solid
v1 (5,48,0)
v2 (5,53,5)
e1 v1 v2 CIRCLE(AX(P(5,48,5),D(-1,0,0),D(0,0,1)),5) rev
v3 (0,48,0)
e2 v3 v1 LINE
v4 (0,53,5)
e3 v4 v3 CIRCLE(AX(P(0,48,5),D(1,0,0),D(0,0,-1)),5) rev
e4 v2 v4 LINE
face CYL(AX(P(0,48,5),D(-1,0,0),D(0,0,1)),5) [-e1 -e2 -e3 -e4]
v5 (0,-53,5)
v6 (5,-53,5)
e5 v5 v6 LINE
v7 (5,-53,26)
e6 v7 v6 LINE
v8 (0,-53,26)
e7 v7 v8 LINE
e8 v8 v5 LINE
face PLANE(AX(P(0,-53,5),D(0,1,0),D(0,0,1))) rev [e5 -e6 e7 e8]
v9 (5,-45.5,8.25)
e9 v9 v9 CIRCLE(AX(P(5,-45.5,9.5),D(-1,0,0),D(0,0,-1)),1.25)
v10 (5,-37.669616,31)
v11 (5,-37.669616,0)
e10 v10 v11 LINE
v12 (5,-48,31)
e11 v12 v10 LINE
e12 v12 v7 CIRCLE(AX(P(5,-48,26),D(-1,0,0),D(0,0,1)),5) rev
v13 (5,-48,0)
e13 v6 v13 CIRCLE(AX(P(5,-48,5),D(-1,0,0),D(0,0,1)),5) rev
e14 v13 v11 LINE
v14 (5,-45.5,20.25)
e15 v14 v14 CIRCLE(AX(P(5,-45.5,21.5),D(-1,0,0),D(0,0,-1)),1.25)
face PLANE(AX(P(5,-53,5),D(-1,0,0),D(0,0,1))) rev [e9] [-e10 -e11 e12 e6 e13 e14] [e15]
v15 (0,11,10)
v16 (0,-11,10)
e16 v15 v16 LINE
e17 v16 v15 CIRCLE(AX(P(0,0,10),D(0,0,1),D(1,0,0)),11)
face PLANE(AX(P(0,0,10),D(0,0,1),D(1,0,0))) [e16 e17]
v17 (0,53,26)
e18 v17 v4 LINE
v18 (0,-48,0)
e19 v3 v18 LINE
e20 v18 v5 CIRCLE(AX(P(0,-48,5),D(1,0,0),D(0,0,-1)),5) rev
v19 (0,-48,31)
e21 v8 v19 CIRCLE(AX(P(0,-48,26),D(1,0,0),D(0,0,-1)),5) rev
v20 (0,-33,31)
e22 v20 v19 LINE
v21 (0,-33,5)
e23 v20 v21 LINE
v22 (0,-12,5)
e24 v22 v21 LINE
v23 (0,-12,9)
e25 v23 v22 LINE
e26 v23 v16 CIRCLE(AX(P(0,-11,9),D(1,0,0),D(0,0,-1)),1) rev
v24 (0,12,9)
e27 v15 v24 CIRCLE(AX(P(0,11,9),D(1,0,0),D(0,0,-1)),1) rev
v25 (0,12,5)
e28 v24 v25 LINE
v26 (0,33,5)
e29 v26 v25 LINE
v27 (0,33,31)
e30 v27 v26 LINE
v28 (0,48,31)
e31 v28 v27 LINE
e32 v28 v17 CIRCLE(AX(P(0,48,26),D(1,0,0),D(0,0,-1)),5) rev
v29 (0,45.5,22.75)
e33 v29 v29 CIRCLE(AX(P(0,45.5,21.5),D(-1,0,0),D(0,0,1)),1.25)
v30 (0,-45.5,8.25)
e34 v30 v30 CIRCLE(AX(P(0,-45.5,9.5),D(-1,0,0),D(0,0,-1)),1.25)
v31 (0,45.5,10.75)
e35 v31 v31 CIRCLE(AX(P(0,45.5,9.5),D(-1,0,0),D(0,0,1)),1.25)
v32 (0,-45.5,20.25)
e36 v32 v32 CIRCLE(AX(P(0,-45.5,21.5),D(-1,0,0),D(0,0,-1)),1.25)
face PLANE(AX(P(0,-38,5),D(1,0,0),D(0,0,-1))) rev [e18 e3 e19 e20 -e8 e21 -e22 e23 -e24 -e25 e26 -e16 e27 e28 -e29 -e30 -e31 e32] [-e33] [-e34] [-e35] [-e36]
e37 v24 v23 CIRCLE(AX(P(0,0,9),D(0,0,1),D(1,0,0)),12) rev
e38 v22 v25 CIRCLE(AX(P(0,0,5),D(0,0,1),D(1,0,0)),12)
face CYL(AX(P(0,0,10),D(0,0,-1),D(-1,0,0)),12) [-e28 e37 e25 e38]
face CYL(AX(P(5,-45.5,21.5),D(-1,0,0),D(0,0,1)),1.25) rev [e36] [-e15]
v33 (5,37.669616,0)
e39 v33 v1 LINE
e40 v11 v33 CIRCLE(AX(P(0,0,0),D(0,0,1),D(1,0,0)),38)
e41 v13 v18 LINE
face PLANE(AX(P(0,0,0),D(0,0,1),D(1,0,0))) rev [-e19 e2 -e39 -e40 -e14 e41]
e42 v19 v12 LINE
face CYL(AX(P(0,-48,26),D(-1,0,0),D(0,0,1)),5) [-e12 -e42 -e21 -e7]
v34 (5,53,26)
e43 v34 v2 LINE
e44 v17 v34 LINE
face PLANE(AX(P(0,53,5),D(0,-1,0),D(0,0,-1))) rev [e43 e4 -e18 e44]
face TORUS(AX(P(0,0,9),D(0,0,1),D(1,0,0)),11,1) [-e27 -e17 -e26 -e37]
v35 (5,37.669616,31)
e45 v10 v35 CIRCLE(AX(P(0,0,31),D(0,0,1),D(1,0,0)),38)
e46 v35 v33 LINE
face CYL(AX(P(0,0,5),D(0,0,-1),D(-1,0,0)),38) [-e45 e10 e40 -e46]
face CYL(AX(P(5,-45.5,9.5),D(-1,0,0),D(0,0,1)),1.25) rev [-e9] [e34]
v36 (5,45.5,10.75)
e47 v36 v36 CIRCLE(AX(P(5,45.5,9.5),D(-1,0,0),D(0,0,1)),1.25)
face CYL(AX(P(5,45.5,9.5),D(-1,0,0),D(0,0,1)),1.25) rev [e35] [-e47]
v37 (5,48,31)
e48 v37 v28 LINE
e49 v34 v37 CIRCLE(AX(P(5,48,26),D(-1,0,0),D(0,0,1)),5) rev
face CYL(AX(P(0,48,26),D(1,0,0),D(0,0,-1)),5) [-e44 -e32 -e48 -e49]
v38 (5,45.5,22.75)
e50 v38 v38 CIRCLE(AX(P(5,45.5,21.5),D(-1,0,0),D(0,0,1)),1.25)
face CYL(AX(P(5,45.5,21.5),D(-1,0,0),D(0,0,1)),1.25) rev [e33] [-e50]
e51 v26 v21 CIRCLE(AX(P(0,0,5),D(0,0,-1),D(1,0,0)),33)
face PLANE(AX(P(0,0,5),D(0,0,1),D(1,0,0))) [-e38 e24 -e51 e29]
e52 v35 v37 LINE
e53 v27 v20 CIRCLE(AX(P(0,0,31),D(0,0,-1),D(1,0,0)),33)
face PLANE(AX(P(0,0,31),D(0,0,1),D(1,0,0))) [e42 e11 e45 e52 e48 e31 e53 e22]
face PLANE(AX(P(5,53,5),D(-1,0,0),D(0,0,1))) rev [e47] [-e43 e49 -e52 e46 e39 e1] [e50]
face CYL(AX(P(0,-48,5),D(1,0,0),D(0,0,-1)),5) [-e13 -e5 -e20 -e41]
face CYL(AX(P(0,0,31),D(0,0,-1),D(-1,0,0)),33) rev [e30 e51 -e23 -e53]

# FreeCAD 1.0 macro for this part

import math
import FreeCAD as App
import Part
import Sketcher
from FreeCAD import Vector


def edges_at(feature, points):
    """Names of the edges that pass closest to the given points."""
    edges = feature.Shape.Edges
    near = lambda p: min(range(len(edges)), key=lambda i: edges[i].distToShape(Part.Vertex(*p))[0])
    return sorted({f"Edge{near(p) + 1}" for p in points})

doc = App.newDocument("Part")
body = doc.addObject("PartDesign::Body", "Body")

# Sketch on XY plane
sketch1 = body.newObject("Sketcher::SketchObject", "Sketch")
sketch1.AttachmentSupport = (doc.getObject("XY_Plane"), [""])
sketch1.MapMode = "FlatFace"
sketch1.addGeometry([
    Part.LineSegment(Vector(5, 53, 0), Vector(0, 53, 0)),  # 0
    Part.LineSegment(Vector(0, 53, 0), Vector(0, -53, 0)),  # 1
    Part.LineSegment(Vector(0, -53, 0), Vector(5, -53, 0)),  # 2
    Part.LineSegment(Vector(5, -53, 0), Vector(5, -38, 0)),  # 3
    Part.ArcOfCircle(Part.Circle(Vector(0, 0, 0), Vector(0, 0, 1), 38), math.radians(-82), math.radians(82)),  # 4
    Part.LineSegment(Vector(5, 38, 0), Vector(5, 53, 0)),  # 5
], False)
sketch1.addConstraint([
    Sketcher.Constraint("Coincident", 0, 2, 1, 1),
    Sketcher.Constraint("Coincident", 1, 2, 2, 1),
    Sketcher.Constraint("Coincident", 2, 2, 3, 1),
    Sketcher.Constraint("Coincident", 3, 2, 4, 1),
    Sketcher.Constraint("Coincident", 4, 2, 5, 1),
    Sketcher.Constraint("Coincident", 5, 2, 0, 1),
    Sketcher.Constraint("Horizontal", 0),
    Sketcher.Constraint("Vertical", 1),
    Sketcher.Constraint("Horizontal", 2),
    Sketcher.Constraint("Vertical", 3),
    Sketcher.Constraint("Vertical", 5),
    Sketcher.Constraint("Coincident", 4, 3, -1, 1),
    Sketcher.Constraint("Symmetric", 0, 2, 1, 2, -1, 1),
    Sketcher.Constraint("Vertical", 3, 2, 4, 2),
    Sketcher.Constraint("Radius", 4, 38.0),
    Sketcher.Constraint("DistanceX", 0, 2, 0, 1, 5.0),
    Sketcher.Constraint("DistanceY", 1, 2, 1, 1, 106.0),
])
pad1 = body.newObject("PartDesign::Pad", "Pad")
pad1.Profile = sketch1
pad1.Length = 5

# Sketch on XY plane
sketch2 = body.newObject("Sketcher::SketchObject", "Sketch001")
sketch2.AttachmentSupport = (doc.getObject("XY_Plane"), [""])
sketch2.MapMode = "FlatFace"
sketch2.AttachmentOffset = App.Placement(Vector(0, 0, 5), App.Rotation())
sketch2.addGeometry([
    Part.LineSegment(Vector(0, -33, 0), Vector(0, -38, 0)),
    Part.ArcOfCircle(Part.Circle(Vector(0, 0, 0), Vector(0, 0, 1), 38), math.radians(-90), math.radians(90)),
    Part.LineSegment(Vector(0, 38, 0), Vector(0, 33, 0)),
    Part.ArcOfCircle(Part.Circle(Vector(0, 0, 0), Vector(0, 0, 1), 33), math.radians(-90), math.radians(90)),
], False)
sketch2.addConstraint([
    Sketcher.Constraint("Coincident", 0, 2, 1, 1),
    Sketcher.Constraint("Coincident", 1, 2, 2, 1),
    Sketcher.Constraint("Coincident", 2, 2, 3, 2),
    Sketcher.Constraint("Coincident", 3, 1, 0, 1),
    Sketcher.Constraint("Vertical", 0),
    Sketcher.Constraint("Vertical", 2),
    Sketcher.Constraint("Coincident", 1, 3, -1, 1),
    Sketcher.Constraint("Coincident", 3, 3, -1, 1),
    Sketcher.Constraint("PointOnObject", 0, 2, -2),
    Sketcher.Constraint("PointOnObject", 1, 2, -2),
    Sketcher.Constraint("Radius", 1, 38.0),
    Sketcher.Constraint("Radius", 3, 33.0),
])
pad2 = body.newObject("PartDesign::Pad", "Pad001")
pad2.Profile = sketch2
pad2.Length = 26

# Sketch on XY plane
sketch3 = body.newObject("Sketcher::SketchObject", "Sketch002")
sketch3.AttachmentSupport = (doc.getObject("XY_Plane"), [""])
sketch3.MapMode = "FlatFace"
sketch3.AttachmentOffset = App.Placement(Vector(0, 0, 5), App.Rotation())
sketch3.addGeometry([
    Part.LineSegment(Vector(0, 12, 0), Vector(0, -12, 0)),
    Part.ArcOfCircle(Part.Circle(Vector(0, 0, 0), Vector(0, 0, 1), 12), math.radians(-90), math.radians(90)),
], False)
sketch3.addConstraint([
    Sketcher.Constraint("Coincident", 0, 1, 1, 2),
    Sketcher.Constraint("Coincident", 1, 1, 0, 2),
    Sketcher.Constraint("Vertical", 0),
    Sketcher.Constraint("Coincident", 1, 3, -1, 1),
    Sketcher.Constraint("PointOnObject", 0, 1, -2),
    Sketcher.Constraint("Radius", 1, 12.0),
])
pad3 = body.newObject("PartDesign::Pad", "Pad002")
pad3.Profile = sketch3
pad3.Length = 5
doc.recompute()

fillet = body.newObject("PartDesign::Fillet", "Fillet")
fillet.Base = (pad3, edges_at(pad3, [(12, 0, 10)]))
fillet.Radius = 1

# Sketch on XY plane
sketch4 = body.newObject("Sketcher::SketchObject", "Sketch003")
sketch4.AttachmentSupport = (doc.getObject("XY_Plane"), [""])
sketch4.MapMode = "FlatFace"
sketch4.AttachmentOffset = App.Placement(Vector(0, 0, 5), App.Rotation())
sketch4.addGeometry([
    Part.LineSegment(Vector(0, -38, 0), Vector(0, -53, 0)),  # 0
    Part.LineSegment(Vector(0, -53, 0), Vector(5, -53, 0)),  # 1
    Part.LineSegment(Vector(5, -53, 0), Vector(5, -38, 0)),  # 2
    Part.ArcOfCircle(Part.Circle(Vector(0, 0, 0), Vector(0, 0, 1), 38), math.radians(-90), math.radians(-82.44)),  # 3
    Part.LineSegment(Vector(5, 38, 0), Vector(5, 53, 0)),  # 4
    Part.LineSegment(Vector(5, 53, 0), Vector(0, 53, 0)),  # 5
    Part.LineSegment(Vector(0, 53, 0), Vector(0, 38, 0)),  # 6
    Part.ArcOfCircle(Part.Circle(Vector(0, 0, 0), Vector(0, 0, 1), 38), math.radians(82.44), math.radians(90)),  # 7
], False)
sketch4.addConstraint([
    Sketcher.Constraint("Coincident", 0, 2, 1, 1),
    Sketcher.Constraint("Coincident", 1, 2, 2, 1),
    Sketcher.Constraint("Coincident", 2, 2, 3, 2),
    Sketcher.Constraint("Coincident", 3, 1, 0, 1),
    Sketcher.Constraint("Coincident", 4, 2, 5, 1),
    Sketcher.Constraint("Coincident", 5, 2, 6, 1),
    Sketcher.Constraint("Coincident", 6, 2, 7, 2),
    Sketcher.Constraint("Coincident", 7, 1, 4, 1),
    Sketcher.Constraint("Vertical", 0),
    Sketcher.Constraint("Horizontal", 1),
    Sketcher.Constraint("Vertical", 2),
    Sketcher.Constraint("Vertical", 4),
    Sketcher.Constraint("Horizontal", 5),
    Sketcher.Constraint("Vertical", 6),
    Sketcher.Constraint("Coincident", 3, 3, -1, 1),
    Sketcher.Constraint("Coincident", 7, 3, -1, 1),
    Sketcher.Constraint("Equal", 3, 7),
    Sketcher.Constraint("Symmetric", 0, 2, 5, 2, -1, 1),
    Sketcher.Constraint("PointOnObject", 0, 2, -2),
    Sketcher.Constraint("Vertical", 2, 2, 4, 2),
    Sketcher.Constraint("Radius", 3, 38.0),
    Sketcher.Constraint("DistanceX", 1, 1, 1, 2, 5.0),
    Sketcher.Constraint("DistanceY", 0, 2, 0, 1, 15.0),
])
pad4 = body.newObject("PartDesign::Pad", "Pad003")
pad4.Profile = sketch4
pad4.Length = 26
doc.recompute()

fillet2 = body.newObject("PartDesign::Fillet", "Fillet001")
fillet2.Base = (pad4, edges_at(pad4, [
    (2.5, 53, 0),
    (2.5, -53, 31),
    (2.5, 53, 31),
    (2.5, -53, 0),
]))
fillet2.Radius = 5

# Sketch on YZ plane
sketch5 = body.newObject("Sketcher::SketchObject", "Sketch004")
sketch5.AttachmentSupport = (doc.getObject("YZ_Plane"), [""])
sketch5.MapMode = "FlatFace"
sketch5.addGeometry([
    Part.Circle(Vector(45.5, 9.5, 0), Vector(0, 0, 1), 1.2),
    Part.Circle(Vector(45.5, 21.5, 0), Vector(0, 0, 1), 1.2),
    Part.Circle(Vector(-45.5, 21.5, 0), Vector(0, 0, 1), 1.2),
    Part.Circle(Vector(-45.5, 9.5, 0), Vector(0, 0, 1), 1.2),
], False)
sketch5.addConstraint([
    Sketcher.Constraint("Equal", 0, 1),
    Sketcher.Constraint("Equal", 1, 2),
    Sketcher.Constraint("Equal", 2, 3),
    Sketcher.Constraint("Symmetric", 1, 3, 2, 3, -2),
    Sketcher.Constraint("Symmetric", 0, 3, 3, 3, -2),
    Sketcher.Constraint("Vertical", 0, 3, 1, 3),
    Sketcher.Constraint("Diameter", 0, 2.5),
    Sketcher.Constraint("DistanceY", 0, 3, 1, 3, 12.0),
    Sketcher.Constraint("DistanceX", 2, 3, 1, 3, 91.0),
    Sketcher.Constraint("DistanceY", -1, 1, 0, 3, 9.5),
])
pocket1 = body.newObject("PartDesign::Pocket", "Pocket")
pocket1.Profile = sketch5
pocket1.Length = 5
pocket1.Reversed = True

doc.recompute()
